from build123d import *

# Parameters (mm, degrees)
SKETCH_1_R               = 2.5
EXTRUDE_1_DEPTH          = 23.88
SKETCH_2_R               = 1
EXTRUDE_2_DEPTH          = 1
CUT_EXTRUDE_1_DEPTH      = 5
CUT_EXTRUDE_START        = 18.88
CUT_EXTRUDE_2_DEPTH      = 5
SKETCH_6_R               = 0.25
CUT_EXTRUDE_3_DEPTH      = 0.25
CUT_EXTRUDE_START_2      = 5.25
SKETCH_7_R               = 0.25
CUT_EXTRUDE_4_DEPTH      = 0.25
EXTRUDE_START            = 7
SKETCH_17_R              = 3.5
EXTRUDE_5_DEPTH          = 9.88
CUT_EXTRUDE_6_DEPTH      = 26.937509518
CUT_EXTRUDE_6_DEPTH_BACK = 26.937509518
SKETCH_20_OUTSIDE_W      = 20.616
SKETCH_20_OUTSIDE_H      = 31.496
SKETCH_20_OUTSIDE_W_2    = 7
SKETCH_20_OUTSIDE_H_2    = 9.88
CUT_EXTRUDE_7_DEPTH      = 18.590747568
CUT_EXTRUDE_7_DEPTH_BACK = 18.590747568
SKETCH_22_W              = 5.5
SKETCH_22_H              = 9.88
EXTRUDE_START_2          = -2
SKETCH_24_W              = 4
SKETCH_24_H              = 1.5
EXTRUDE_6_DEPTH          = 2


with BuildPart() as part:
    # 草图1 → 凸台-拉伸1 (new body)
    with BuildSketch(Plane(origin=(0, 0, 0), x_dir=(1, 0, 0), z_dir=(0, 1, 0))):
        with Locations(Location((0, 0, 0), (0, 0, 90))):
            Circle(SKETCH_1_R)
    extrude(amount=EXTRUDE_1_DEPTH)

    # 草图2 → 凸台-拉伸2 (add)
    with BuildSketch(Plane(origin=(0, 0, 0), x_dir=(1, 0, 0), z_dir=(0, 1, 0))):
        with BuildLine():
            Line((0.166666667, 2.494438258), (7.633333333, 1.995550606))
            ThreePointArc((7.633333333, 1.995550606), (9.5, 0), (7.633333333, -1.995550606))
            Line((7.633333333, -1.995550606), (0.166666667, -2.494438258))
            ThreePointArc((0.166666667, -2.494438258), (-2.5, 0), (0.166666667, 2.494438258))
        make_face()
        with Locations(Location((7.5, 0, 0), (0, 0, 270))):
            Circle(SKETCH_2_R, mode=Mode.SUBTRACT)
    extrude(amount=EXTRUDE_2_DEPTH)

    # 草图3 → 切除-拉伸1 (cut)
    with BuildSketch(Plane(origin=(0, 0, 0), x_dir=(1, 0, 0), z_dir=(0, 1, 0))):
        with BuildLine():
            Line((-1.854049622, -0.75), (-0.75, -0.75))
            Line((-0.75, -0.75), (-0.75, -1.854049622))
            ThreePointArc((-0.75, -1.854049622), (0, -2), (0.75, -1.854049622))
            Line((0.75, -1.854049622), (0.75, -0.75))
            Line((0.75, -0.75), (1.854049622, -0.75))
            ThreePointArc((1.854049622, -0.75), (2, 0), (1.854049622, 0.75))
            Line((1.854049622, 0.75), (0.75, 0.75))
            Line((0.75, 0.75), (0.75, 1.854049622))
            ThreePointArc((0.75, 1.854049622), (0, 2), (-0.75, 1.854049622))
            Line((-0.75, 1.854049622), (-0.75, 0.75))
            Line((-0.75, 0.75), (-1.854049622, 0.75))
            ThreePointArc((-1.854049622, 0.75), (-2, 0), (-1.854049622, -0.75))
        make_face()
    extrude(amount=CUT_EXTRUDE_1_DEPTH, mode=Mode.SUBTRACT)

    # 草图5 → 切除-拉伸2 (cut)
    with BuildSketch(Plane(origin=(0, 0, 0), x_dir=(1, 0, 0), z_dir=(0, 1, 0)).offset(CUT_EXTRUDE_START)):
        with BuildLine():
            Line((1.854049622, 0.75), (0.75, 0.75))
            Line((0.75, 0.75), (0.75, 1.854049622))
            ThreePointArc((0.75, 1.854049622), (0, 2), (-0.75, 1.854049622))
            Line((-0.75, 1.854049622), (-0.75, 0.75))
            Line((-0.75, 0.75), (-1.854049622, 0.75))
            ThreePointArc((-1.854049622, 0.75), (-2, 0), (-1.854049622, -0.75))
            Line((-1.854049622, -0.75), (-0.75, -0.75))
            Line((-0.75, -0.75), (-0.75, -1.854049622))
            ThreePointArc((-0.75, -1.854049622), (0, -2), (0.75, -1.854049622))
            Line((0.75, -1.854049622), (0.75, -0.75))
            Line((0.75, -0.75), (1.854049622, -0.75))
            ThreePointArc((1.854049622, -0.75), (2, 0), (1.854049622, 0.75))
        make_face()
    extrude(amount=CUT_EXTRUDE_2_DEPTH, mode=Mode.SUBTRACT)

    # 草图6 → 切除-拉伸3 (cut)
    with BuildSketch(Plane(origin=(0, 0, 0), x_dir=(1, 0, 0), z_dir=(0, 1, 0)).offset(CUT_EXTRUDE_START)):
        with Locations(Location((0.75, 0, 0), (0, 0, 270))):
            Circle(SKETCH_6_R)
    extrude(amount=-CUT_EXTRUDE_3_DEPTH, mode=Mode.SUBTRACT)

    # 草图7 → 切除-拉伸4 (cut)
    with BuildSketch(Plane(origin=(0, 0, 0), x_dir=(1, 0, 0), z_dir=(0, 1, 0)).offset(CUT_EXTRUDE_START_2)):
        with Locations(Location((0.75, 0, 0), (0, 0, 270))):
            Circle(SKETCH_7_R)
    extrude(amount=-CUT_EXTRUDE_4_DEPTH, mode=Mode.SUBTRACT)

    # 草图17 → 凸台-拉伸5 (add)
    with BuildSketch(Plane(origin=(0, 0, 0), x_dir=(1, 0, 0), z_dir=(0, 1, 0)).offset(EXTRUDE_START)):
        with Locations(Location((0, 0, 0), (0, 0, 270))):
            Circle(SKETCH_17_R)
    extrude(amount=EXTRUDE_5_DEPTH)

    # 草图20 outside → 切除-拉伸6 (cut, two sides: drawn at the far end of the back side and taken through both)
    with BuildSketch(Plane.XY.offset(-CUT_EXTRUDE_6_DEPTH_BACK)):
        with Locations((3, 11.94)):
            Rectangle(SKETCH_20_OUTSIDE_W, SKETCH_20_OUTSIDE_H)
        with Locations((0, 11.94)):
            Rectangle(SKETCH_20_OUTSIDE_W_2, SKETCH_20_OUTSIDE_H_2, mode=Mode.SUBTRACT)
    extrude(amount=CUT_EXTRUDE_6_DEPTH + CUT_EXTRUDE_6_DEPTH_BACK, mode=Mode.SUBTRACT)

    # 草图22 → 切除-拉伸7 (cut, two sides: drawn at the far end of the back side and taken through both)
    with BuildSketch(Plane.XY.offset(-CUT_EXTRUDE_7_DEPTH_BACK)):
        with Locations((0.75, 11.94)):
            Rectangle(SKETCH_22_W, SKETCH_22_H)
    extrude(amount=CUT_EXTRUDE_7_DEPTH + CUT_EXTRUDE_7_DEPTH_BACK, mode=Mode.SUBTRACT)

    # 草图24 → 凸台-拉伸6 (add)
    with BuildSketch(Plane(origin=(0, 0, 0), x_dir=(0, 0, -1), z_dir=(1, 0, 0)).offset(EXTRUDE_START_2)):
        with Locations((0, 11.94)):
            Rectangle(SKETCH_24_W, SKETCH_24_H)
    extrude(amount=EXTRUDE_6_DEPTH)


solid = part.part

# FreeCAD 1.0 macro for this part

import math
import FreeCAD as App
import Part
import Sketcher

V = App.Vector
Q = App.Units.Quantity

doc = App.newDocument("Part")
body = doc.addObject("PartDesign::Body", "Body")

sketch1 = body.newObject("Sketcher::SketchObject", "Sketch")
sketch1.AttachmentSupport = (doc.getObject("XZ_Plane"), [""])
sketch1.MapMode = "FlatFace"
sketch1.addGeometry(Part.Circle(V(0, 0, 0), V(0, 0, 1), 2.5), False)
sketch1.addConstraint([
    Sketcher.Constraint("Coincident", 0, 3, -1, 1),
    Sketcher.Constraint("Diameter", 0, Q("5 mm")),
])
pad1 = body.newObject("PartDesign::Pad", "Pad")
pad1.Profile = sketch1
pad1.Length = 23.88
pad1.Reversed = True

sketch2 = body.newObject("Sketcher::SketchObject", "Sketch001")
sketch2.AttachmentSupport = (doc.getObject("XZ_Plane"), [""])
sketch2.MapMode = "FlatFace"
sketch2.addGeometry([
    Part.LineSegment(V(7.6, -2, 0), V(0.2, -2.5, 0)),
    Part.ArcOfCircle(Part.Circle(V(0, 0, 0), V(0, 0, 1), 2.5), math.radians(86), math.radians(274)),
    Part.LineSegment(V(0.2, 2.5, 0), V(7.6, 2, 0)),
    Part.ArcOfCircle(Part.Circle(V(7.5, 0, 0), V(0, 0, 1), 2), math.radians(-86), math.radians(86)),
    Part.Circle(V(7.5, 0, 0), V(0, 0, 1), 1),
], False)
sketch2.addConstraint([
    Sketcher.Constraint("Tangent", 0, 2, 1, 2),
    Sketcher.Constraint("Tangent", 1, 1, 2, 1),
    Sketcher.Constraint("Tangent", 2, 2, 3, 2),
    Sketcher.Constraint("Tangent", 3, 1, 0, 1),
    Sketcher.Constraint("Coincident", 1, 3, -1, 1),
    Sketcher.Constraint("Coincident", 4, 3, 3, 3),
    Sketcher.Constraint("PointOnObject", 3, 3, -1),
    Sketcher.Constraint("Diameter", 4, Q("2 mm")),
    Sketcher.Constraint("Radius", 3, Q("2 mm")),
    Sketcher.Constraint("Radius", 1, Q("2.5 mm")),
    Sketcher.Constraint("DistanceX", -1, 1, 3, 3, Q("7.5 mm")),
])
pad2 = body.newObject("PartDesign::Pad", "Pad001")
pad2.Profile = sketch2
pad2.Length = 1
pad2.Reversed = True

sketch3 = body.newObject("Sketcher::SketchObject", "Sketch002")
sketch3.AttachmentSupport = (doc.getObject("XZ_Plane"), [""])
sketch3.MapMode = "FlatFace"
sketch3.addGeometry([
    Part.LineSegment(V(-1.9, 0.8, 0), V(-0.8, 0.8, 0)),
    Part.LineSegment(V(-0.8, 0.8, 0), V(-0.8, 1.9, 0)),
    Part.ArcOfCircle(Part.Circle(V(0, 0, 0), V(0, 0, 1), 2), math.radians(68), math.radians(112)),
    Part.LineSegment(V(0.8, 1.9, 0), V(0.8, 0.8, 0)),
    Part.LineSegment(V(0.8, 0.8, 0), V(1.9, 0.8, 0)),
    Part.ArcOfCircle(Part.Circle(V(0, 0, 0), V(0, 0, 1), 2), math.radians(-22), math.radians(22)),
    Part.LineSegment(V(1.9, -0.8, 0), V(0.8, -0.8, 0)),
    Part.LineSegment(V(0.8, -0.8, 0), V(0.8, -1.9, 0)),
    Part.ArcOfCircle(Part.Circle(V(0, 0, 0), V(0, 0, 1), 2), math.radians(-112), math.radians(-68)),
    Part.LineSegment(V(-0.8, -1.9, 0), V(-0.8, -0.8, 0)),
    Part.LineSegment(V(-0.8, -0.8, 0), V(-1.9, -0.8, 0)),
    Part.ArcOfCircle(Part.Circle(V(0, 0, 0), V(0, 0, 1), 2), math.radians(158), math.radians(202)),
], False)
sketch3.addConstraint([
    Sketcher.Constraint("Coincident", 0, 2, 1, 1),
    Sketcher.Constraint("Coincident", 1, 2, 2, 2),
    Sketcher.Constraint("Coincident", 2, 1, 3, 1),
    Sketcher.Constraint("Coincident", 3, 2, 4, 1),
    Sketcher.Constraint("Coincident", 4, 2, 5, 2),
    Sketcher.Constraint("Coincident", 5, 1, 6, 1),
    Sketcher.Constraint("Coincident", 6, 2, 7, 1),
    Sketcher.Constraint("Coincident", 7, 2, 8, 2),
    Sketcher.Constraint("Coincident", 8, 1, 9, 1),
    Sketcher.Constraint("Coincident", 9, 2, 10, 1),
    Sketcher.Constraint("Coincident", 10, 2, 11, 2),
    Sketcher.Constraint("Coincident", 11, 1, 0, 1),
    Sketcher.Constraint("Horizontal", 0),
    Sketcher.Constraint("Vertical", 1),
    Sketcher.Constraint("Vertical", 3),
    Sketcher.Constraint("Horizontal", 4),
    Sketcher.Constraint("Horizontal", 6),
    Sketcher.Constraint("Vertical", 7),
    Sketcher.Constraint("Vertical", 9),
    Sketcher.Constraint("Horizontal", 10),
    Sketcher.Constraint("Coincident", 2, 3, -1, 1),
    Sketcher.Constraint("Coincident", 5, 3, -1, 1),
    Sketcher.Constraint("Coincident", 8, 3, -1, 1),
    Sketcher.Constraint("Coincident", 11, 3, -1, 1),
    Sketcher.Constraint("Equal", 2, 5),
    Sketcher.Constraint("Equal", 5, 8),
    Sketcher.Constraint("Equal", 8, 11),
    Sketcher.Constraint("Symmetric", 0, 2, 6, 2, -1, 1),
    Sketcher.Constraint("Symmetric", 3, 2, 9, 2, -1, 1),
    Sketcher.Constraint("Symmetric", 0, 2, 3, 2, -2),
    Sketcher.Constraint("Equal", 10, 1),
    Sketcher.Constraint("Radius", 2, Q("2 mm")),
    Sketcher.Constraint("DistanceX", 1, 2, 2, 1, Q("1.5 mm")),
])
pocket1 = body.newObject("PartDesign::Pocket", "Pocket")
pocket1.Profile = sketch3
pocket1.Length = 5

sketch4 = body.newObject("Sketcher::SketchObject", "Sketch003")
sketch4.AttachmentSupport = (doc.getObject("XZ_Plane"), [""])
sketch4.MapMode = "FlatFace"
sketch4.AttachmentOffset = App.Placement(V(0, 0, -18.88), App.Rotation())
sketch4.addGeometry([
    Part.LineSegment(V(1.9, -0.8, 0), V(0.8, -0.8, 0)),
    Part.LineSegment(V(0.8, -0.8, 0), V(0.8, -1.9, 0)),
    Part.ArcOfCircle(Part.Circle(V(0, 0, 0), V(0, 0, 1), 2), math.radians(-112), math.radians(-68)),
    Part.LineSegment(V(-0.8, -1.9, 0), V(-0.8, -0.8, 0)),
    Part.LineSegment(V(-0.8, -0.8, 0), V(-1.9, -0.8, 0)),
    Part.ArcOfCircle(Part.Circle(V(0, 0, 0), V(0, 0, 1), 2), math.radians(158), math.radians(202)),
    Part.LineSegment(V(-1.9, 0.8, 0), V(-0.8, 0.8, 0)),
    Part.LineSegment(V(-0.8, 0.8, 0), V(-0.8, 1.9, 0)),
    Part.ArcOfCircle(Part.Circle(V(0, 0, 0), V(0, 0, 1), 2), math.radians(68), math.radians(112)),
    Part.LineSegment(V(0.8, 1.9, 0), V(0.8, 0.8, 0)),
    Part.LineSegment(V(0.8, 0.8, 0), V(1.9, 0.8, 0)),
    Part.ArcOfCircle(Part.Circle(V(0, 0, 0), V(0, 0, 1), 2), math.radians(-22), math.radians(22)),
], False)
sketch4.addConstraint([
    Sketcher.Constraint("Coincident", 0, 2, 1, 1),
    Sketcher.Constraint("Coincident", 1, 2, 2, 2),
    Sketcher.Constraint("Coincident", 2, 1, 3, 1),
    Sketcher.Constraint("Coincident", 3, 2, 4, 1),
    Sketcher.Constraint("Coincident", 4, 2, 5, 2),
    Sketcher.Constraint("Coincident", 5, 1, 6, 1),
    Sketcher.Constraint("Coincident", 6, 2, 7, 1),
    Sketcher.Constraint("Coincident", 7, 2, 8, 2),
    Sketcher.Constraint("Coincident", 8, 1, 9, 1),
    Sketcher.Constraint("Coincident", 9, 2, 10, 1),
    Sketcher.Constraint("Coincident", 10, 2, 11, 2),
    Sketcher.Constraint("Coincident", 11, 1, 0, 1),
    Sketcher.Constraint("Horizontal", 0),
    Sketcher.Constraint("Vertical", 1),
    Sketcher.Constraint("Vertical", 3),
    Sketcher.Constraint("Horizontal", 4),
    Sketcher.Constraint("Horizontal", 6),
    Sketcher.Constraint("Vertical", 7),
    Sketcher.Constraint("Vertical", 9),
    Sketcher.Constraint("Horizontal", 10),
    Sketcher.Constraint("Coincident", 2, 3, -1, 1),
    Sketcher.Constraint("Coincident", 5, 3, -1, 1),
    Sketcher.Constraint("Coincident", 8, 3, -1, 1),
    Sketcher.Constraint("Coincident", 11, 3, -1, 1),
    Sketcher.Constraint("Equal", 2, 5),
    Sketcher.Constraint("Equal", 5, 8),
    Sketcher.Constraint("Equal", 8, 11),
    Sketcher.Constraint("Symmetric", 0, 2, 6, 2, -1, 1),
    Sketcher.Constraint("Symmetric", 3, 2, 9, 2, -1, 1),
    Sketcher.Constraint("Symmetric", 0, 2, 3, 2, -2),
    Sketcher.Constraint("Equal", 10, 1),
    Sketcher.Constraint("Radius", 2, Q("2 mm")),
    Sketcher.Constraint("DistanceX", 2, 1, 1, 2, Q("1.5 mm")),
])
pocket2 = body.newObject("PartDesign::Pocket", "Pocket001")
pocket2.Profile = sketch4
pocket2.Length = 5

sketch5 = body.newObject("Sketcher::SketchObject", "Sketch004")
sketch5.AttachmentSupport = (doc.getObject("XZ_Plane"), [""])
sketch5.MapMode = "FlatFace"
sketch5.AttachmentOffset = App.Placement(V(0, 0, -18.88), App.Rotation())
sketch5.addGeometry(Part.Circle(V(0.75, 0, 0), V(0, 0, 1), 0.25), False)
sketch5.addConstraint([
    Sketcher.Constraint("PointOnObject", 0, 3, -1),
    Sketcher.Constraint("Diameter", 0, Q("0.5 mm")),
    Sketcher.Constraint("DistanceX", -1, 1, 0, 3, Q("0.75 mm")),
])
pocket3 = body.newObject("PartDesign::Pocket", "Pocket002")
pocket3.Profile = sketch5
pocket3.Length = 0.25
pocket3.Reversed = True

sketch6 = body.newObject("Sketcher::SketchObject", "Sketch005")
sketch6.AttachmentSupport = (doc.getObject("XZ_Plane"), [""])
sketch6.MapMode = "FlatFace"
sketch6.AttachmentOffset = App.Placement(V(0, 0, -5.25), App.Rotation())
sketch6.addGeometry(Part.Circle(V(0.75, 0, 0), V(0, 0, 1), 0.25), False)
sketch6.addConstraint([
    Sketcher.Constraint("PointOnObject", 0, 3, -1),
    Sketcher.Constraint("Diameter", 0, Q("0.5 mm")),
    Sketcher.Constraint("DistanceX", -1, 1, 0, 3, Q("0.75 mm")),
])
pocket4 = body.newObject("PartDesign::Pocket", "Pocket003")
pocket4.Profile = sketch6
pocket4.Length = 0.25
pocket4.Reversed = True

sketch7 = body.newObject("Sketcher::SketchObject", "Sketch006")
sketch7.AttachmentSupport = (doc.getObject("XZ_Plane"), [""])
sketch7.MapMode = "FlatFace"
sketch7.AttachmentOffset = App.Placement(V(0, 0, -7), App.Rotation())
sketch7.addGeometry(Part.Circle(V(0, 0, 0), V(0, 0, 1), 3.5), False)
sketch7.addConstraint([
    Sketcher.Constraint("Coincident", 0, 3, -1, 1),
    Sketcher.Constraint("Diameter", 0, Q("7 mm")),
])
pad3 = body.newObject("PartDesign::Pad", "Pad002")
pad3.Profile = sketch7
pad3.Length = 9.88
pad3.Reversed = True

sketch8 = body.newObject("Sketcher::SketchObject", "Sketch007")
sketch8.AttachmentSupport = (doc.getObject("XY_Plane"), [""])
sketch8.MapMode = "FlatFace"
sketch8.addGeometry([
    Part.LineSegment(V(-7, 28, 0), V(-7, -4, 0)),
    Part.LineSegment(V(-7, -4, 0), V(13, -4, 0)),
    Part.LineSegment(V(13, -4, 0), V(13, 28, 0)),
    Part.LineSegment(V(13, 28, 0), V(-7, 28, 0)),
    Part.LineSegment(V(4, 7, 0), V(-4, 7, 0)),
    Part.LineSegment(V(-4, 7, 0), V(-4, 17, 0)),
    Part.LineSegment(V(-4, 17, 0), V(4, 17, 0)),
    Part.LineSegment(V(4, 17, 0), V(4, 7, 0)),
], False)
sketch8.addConstraint([
    Sketcher.Constraint("Coincident", 0, 2, 1, 1),
    Sketcher.Constraint("Coincident", 1, 2, 2, 1),
    Sketcher.Constraint("Coincident", 2, 2, 3, 1),
    Sketcher.Constraint("Coincident", 3, 2, 0, 1),
    Sketcher.Constraint("Coincident", 4, 2, 5, 1),
    Sketcher.Constraint("Coincident", 5, 2, 6, 1),
    Sketcher.Constraint("Coincident", 6, 2, 7, 1),
    Sketcher.Constraint("Coincident", 7, 2, 4, 1),
    Sketcher.Constraint("Vertical", 0),
    Sketcher.Constraint("Horizontal", 1),
    Sketcher.Constraint("Vertical", 2),
    Sketcher.Constraint("Horizontal", 3),
    Sketcher.Constraint("Horizontal", 4),
    Sketcher.Constraint("Vertical", 5),
    Sketcher.Constraint("Horizontal", 6),
    Sketcher.Constraint("Vertical", 7),
    Sketcher.Constraint("DistanceX", 4, 2, 4, 1, Q("7 mm")),
    Sketcher.Constraint("DistanceY", -1, 1, 4, 2, Q("7 mm")),
    Sketcher.Constraint("DistanceY", 5, 1, 5, 2, Q("9.88 mm")),
    Sketcher.Constraint("DistanceX", 4, 2, -1, 1, Q("3.5 mm")),
    Sketcher.Constraint("DistanceX", 1, 1, 1, 2, Q("20.616 mm")),
    Sketcher.Constraint("DistanceY", 0, 2, 0, 1, Q("31.496 mm")),
    Sketcher.Constraint("DistanceX", 0, 2, -1, 1, Q("7.308 mm")),
    Sketcher.Constraint("DistanceY", 0, 2, -1, 1, Q("3.808 mm")),
])
pocket5 = body.newObject("PartDesign::Pocket", "Pocket004")
pocket5.Profile = sketch8
pocket5.Type = "ThroughAll"
pocket5.Midplane = True

sketch9 = body.newObject("Sketcher::SketchObject", "Sketch008")
sketch9.AttachmentSupport = (doc.getObject("XY_Plane"), [""])
sketch9.MapMode = "FlatFace"
sketch9.addGeometry([
    Part.LineSegment(V(-2, 17, 0), V(-2, 7, 0)),
    Part.LineSegment(V(-2, 7, 0), V(4, 7, 0)),
    Part.LineSegment(V(4, 7, 0), V(4, 17, 0)),
    Part.LineSegment(V(4, 17, 0), V(-2, 17, 0)),
], False)
sketch9.addConstraint([
    Sketcher.Constraint("Coincident", 0, 2, 1, 1),
    Sketcher.Constraint("Coincident", 1, 2, 2, 1),
    Sketcher.Constraint("Coincident", 2, 2, 3, 1),
    Sketcher.Constraint("Coincident", 3, 2, 0, 1),
    Sketcher.Constraint("Vertical", 0),
    Sketcher.Constraint("Horizontal", 1),
    Sketcher.Constraint("Vertical", 2),
    Sketcher.Constraint("Horizontal", 3),
    Sketcher.Constraint("DistanceX", 1, 1, 1, 2, Q("5.5 mm")),
    Sketcher.Constraint("DistanceX", 0, 2, -1, 1, Q("2 mm")),
    Sketcher.Constraint("DistanceY", -1, 1, 0, 2, Q("7 mm")),
    Sketcher.Constraint("DistanceY", 0, 2, 0, 1, Q("9.88 mm")),
])
pocket6 = body.newObject("PartDesign::Pocket", "Pocket005")
pocket6.Profile = sketch9
pocket6.Type = "ThroughAll"
pocket6.Midplane = True

sketch10 = body.newObject("Sketcher::SketchObject", "Sketch009")
sketch10.AttachmentSupport = (doc.getObject("YZ_Plane"), [""])
sketch10.MapMode = "FlatFace"
sketch10.AttachmentOffset = App.Placement(V(0, 0, -2), App.Rotation())
sketch10.addGeometry([
    Part.LineSegment(V(12.7, 2, 0), V(11.2, 2, 0)),
    Part.LineSegment(V(11.2, 2, 0), V(11.2, -2, 0)),
    Part.LineSegment(V(11.2, -2, 0), V(12.7, -2, 0)),
    Part.LineSegment(V(12.7, -2, 0), V(12.7, 2, 0)),
], False)
sketch10.addConstraint([
    Sketcher.Constraint("Coincident", 0, 2, 1, 1),
    Sketcher.Constraint("Coincident", 1, 2, 2, 1),
    Sketcher.Constraint("Coincident", 2, 2, 3, 1),
    Sketcher.Constraint("Coincident", 3, 2, 0, 1),
    Sketcher.Constraint("Horizontal", 0),
    Sketcher.Constraint("Vertical", 1),
    Sketcher.Constraint("Horizontal", 2),
    Sketcher.Constraint("Vertical", 3),
    Sketcher.Constraint("DistanceY", 1, 2, 1, 1, Q("4 mm")),
    Sketcher.Constraint("DistanceX", 0, 2, 0, 1, Q("1.5 mm")),
    Sketcher.Constraint("DistanceY", -1, 1, 0, 2, Q("2 mm")),
    Sketcher.Constraint("DistanceX", -1, 1, 0, 2, Q("11.19 mm")),
])
pad4 = body.newObject("PartDesign::Pad", "Pad003")
pad4.Profile = sketch10
pad4.Length = 2

doc.recompute()
